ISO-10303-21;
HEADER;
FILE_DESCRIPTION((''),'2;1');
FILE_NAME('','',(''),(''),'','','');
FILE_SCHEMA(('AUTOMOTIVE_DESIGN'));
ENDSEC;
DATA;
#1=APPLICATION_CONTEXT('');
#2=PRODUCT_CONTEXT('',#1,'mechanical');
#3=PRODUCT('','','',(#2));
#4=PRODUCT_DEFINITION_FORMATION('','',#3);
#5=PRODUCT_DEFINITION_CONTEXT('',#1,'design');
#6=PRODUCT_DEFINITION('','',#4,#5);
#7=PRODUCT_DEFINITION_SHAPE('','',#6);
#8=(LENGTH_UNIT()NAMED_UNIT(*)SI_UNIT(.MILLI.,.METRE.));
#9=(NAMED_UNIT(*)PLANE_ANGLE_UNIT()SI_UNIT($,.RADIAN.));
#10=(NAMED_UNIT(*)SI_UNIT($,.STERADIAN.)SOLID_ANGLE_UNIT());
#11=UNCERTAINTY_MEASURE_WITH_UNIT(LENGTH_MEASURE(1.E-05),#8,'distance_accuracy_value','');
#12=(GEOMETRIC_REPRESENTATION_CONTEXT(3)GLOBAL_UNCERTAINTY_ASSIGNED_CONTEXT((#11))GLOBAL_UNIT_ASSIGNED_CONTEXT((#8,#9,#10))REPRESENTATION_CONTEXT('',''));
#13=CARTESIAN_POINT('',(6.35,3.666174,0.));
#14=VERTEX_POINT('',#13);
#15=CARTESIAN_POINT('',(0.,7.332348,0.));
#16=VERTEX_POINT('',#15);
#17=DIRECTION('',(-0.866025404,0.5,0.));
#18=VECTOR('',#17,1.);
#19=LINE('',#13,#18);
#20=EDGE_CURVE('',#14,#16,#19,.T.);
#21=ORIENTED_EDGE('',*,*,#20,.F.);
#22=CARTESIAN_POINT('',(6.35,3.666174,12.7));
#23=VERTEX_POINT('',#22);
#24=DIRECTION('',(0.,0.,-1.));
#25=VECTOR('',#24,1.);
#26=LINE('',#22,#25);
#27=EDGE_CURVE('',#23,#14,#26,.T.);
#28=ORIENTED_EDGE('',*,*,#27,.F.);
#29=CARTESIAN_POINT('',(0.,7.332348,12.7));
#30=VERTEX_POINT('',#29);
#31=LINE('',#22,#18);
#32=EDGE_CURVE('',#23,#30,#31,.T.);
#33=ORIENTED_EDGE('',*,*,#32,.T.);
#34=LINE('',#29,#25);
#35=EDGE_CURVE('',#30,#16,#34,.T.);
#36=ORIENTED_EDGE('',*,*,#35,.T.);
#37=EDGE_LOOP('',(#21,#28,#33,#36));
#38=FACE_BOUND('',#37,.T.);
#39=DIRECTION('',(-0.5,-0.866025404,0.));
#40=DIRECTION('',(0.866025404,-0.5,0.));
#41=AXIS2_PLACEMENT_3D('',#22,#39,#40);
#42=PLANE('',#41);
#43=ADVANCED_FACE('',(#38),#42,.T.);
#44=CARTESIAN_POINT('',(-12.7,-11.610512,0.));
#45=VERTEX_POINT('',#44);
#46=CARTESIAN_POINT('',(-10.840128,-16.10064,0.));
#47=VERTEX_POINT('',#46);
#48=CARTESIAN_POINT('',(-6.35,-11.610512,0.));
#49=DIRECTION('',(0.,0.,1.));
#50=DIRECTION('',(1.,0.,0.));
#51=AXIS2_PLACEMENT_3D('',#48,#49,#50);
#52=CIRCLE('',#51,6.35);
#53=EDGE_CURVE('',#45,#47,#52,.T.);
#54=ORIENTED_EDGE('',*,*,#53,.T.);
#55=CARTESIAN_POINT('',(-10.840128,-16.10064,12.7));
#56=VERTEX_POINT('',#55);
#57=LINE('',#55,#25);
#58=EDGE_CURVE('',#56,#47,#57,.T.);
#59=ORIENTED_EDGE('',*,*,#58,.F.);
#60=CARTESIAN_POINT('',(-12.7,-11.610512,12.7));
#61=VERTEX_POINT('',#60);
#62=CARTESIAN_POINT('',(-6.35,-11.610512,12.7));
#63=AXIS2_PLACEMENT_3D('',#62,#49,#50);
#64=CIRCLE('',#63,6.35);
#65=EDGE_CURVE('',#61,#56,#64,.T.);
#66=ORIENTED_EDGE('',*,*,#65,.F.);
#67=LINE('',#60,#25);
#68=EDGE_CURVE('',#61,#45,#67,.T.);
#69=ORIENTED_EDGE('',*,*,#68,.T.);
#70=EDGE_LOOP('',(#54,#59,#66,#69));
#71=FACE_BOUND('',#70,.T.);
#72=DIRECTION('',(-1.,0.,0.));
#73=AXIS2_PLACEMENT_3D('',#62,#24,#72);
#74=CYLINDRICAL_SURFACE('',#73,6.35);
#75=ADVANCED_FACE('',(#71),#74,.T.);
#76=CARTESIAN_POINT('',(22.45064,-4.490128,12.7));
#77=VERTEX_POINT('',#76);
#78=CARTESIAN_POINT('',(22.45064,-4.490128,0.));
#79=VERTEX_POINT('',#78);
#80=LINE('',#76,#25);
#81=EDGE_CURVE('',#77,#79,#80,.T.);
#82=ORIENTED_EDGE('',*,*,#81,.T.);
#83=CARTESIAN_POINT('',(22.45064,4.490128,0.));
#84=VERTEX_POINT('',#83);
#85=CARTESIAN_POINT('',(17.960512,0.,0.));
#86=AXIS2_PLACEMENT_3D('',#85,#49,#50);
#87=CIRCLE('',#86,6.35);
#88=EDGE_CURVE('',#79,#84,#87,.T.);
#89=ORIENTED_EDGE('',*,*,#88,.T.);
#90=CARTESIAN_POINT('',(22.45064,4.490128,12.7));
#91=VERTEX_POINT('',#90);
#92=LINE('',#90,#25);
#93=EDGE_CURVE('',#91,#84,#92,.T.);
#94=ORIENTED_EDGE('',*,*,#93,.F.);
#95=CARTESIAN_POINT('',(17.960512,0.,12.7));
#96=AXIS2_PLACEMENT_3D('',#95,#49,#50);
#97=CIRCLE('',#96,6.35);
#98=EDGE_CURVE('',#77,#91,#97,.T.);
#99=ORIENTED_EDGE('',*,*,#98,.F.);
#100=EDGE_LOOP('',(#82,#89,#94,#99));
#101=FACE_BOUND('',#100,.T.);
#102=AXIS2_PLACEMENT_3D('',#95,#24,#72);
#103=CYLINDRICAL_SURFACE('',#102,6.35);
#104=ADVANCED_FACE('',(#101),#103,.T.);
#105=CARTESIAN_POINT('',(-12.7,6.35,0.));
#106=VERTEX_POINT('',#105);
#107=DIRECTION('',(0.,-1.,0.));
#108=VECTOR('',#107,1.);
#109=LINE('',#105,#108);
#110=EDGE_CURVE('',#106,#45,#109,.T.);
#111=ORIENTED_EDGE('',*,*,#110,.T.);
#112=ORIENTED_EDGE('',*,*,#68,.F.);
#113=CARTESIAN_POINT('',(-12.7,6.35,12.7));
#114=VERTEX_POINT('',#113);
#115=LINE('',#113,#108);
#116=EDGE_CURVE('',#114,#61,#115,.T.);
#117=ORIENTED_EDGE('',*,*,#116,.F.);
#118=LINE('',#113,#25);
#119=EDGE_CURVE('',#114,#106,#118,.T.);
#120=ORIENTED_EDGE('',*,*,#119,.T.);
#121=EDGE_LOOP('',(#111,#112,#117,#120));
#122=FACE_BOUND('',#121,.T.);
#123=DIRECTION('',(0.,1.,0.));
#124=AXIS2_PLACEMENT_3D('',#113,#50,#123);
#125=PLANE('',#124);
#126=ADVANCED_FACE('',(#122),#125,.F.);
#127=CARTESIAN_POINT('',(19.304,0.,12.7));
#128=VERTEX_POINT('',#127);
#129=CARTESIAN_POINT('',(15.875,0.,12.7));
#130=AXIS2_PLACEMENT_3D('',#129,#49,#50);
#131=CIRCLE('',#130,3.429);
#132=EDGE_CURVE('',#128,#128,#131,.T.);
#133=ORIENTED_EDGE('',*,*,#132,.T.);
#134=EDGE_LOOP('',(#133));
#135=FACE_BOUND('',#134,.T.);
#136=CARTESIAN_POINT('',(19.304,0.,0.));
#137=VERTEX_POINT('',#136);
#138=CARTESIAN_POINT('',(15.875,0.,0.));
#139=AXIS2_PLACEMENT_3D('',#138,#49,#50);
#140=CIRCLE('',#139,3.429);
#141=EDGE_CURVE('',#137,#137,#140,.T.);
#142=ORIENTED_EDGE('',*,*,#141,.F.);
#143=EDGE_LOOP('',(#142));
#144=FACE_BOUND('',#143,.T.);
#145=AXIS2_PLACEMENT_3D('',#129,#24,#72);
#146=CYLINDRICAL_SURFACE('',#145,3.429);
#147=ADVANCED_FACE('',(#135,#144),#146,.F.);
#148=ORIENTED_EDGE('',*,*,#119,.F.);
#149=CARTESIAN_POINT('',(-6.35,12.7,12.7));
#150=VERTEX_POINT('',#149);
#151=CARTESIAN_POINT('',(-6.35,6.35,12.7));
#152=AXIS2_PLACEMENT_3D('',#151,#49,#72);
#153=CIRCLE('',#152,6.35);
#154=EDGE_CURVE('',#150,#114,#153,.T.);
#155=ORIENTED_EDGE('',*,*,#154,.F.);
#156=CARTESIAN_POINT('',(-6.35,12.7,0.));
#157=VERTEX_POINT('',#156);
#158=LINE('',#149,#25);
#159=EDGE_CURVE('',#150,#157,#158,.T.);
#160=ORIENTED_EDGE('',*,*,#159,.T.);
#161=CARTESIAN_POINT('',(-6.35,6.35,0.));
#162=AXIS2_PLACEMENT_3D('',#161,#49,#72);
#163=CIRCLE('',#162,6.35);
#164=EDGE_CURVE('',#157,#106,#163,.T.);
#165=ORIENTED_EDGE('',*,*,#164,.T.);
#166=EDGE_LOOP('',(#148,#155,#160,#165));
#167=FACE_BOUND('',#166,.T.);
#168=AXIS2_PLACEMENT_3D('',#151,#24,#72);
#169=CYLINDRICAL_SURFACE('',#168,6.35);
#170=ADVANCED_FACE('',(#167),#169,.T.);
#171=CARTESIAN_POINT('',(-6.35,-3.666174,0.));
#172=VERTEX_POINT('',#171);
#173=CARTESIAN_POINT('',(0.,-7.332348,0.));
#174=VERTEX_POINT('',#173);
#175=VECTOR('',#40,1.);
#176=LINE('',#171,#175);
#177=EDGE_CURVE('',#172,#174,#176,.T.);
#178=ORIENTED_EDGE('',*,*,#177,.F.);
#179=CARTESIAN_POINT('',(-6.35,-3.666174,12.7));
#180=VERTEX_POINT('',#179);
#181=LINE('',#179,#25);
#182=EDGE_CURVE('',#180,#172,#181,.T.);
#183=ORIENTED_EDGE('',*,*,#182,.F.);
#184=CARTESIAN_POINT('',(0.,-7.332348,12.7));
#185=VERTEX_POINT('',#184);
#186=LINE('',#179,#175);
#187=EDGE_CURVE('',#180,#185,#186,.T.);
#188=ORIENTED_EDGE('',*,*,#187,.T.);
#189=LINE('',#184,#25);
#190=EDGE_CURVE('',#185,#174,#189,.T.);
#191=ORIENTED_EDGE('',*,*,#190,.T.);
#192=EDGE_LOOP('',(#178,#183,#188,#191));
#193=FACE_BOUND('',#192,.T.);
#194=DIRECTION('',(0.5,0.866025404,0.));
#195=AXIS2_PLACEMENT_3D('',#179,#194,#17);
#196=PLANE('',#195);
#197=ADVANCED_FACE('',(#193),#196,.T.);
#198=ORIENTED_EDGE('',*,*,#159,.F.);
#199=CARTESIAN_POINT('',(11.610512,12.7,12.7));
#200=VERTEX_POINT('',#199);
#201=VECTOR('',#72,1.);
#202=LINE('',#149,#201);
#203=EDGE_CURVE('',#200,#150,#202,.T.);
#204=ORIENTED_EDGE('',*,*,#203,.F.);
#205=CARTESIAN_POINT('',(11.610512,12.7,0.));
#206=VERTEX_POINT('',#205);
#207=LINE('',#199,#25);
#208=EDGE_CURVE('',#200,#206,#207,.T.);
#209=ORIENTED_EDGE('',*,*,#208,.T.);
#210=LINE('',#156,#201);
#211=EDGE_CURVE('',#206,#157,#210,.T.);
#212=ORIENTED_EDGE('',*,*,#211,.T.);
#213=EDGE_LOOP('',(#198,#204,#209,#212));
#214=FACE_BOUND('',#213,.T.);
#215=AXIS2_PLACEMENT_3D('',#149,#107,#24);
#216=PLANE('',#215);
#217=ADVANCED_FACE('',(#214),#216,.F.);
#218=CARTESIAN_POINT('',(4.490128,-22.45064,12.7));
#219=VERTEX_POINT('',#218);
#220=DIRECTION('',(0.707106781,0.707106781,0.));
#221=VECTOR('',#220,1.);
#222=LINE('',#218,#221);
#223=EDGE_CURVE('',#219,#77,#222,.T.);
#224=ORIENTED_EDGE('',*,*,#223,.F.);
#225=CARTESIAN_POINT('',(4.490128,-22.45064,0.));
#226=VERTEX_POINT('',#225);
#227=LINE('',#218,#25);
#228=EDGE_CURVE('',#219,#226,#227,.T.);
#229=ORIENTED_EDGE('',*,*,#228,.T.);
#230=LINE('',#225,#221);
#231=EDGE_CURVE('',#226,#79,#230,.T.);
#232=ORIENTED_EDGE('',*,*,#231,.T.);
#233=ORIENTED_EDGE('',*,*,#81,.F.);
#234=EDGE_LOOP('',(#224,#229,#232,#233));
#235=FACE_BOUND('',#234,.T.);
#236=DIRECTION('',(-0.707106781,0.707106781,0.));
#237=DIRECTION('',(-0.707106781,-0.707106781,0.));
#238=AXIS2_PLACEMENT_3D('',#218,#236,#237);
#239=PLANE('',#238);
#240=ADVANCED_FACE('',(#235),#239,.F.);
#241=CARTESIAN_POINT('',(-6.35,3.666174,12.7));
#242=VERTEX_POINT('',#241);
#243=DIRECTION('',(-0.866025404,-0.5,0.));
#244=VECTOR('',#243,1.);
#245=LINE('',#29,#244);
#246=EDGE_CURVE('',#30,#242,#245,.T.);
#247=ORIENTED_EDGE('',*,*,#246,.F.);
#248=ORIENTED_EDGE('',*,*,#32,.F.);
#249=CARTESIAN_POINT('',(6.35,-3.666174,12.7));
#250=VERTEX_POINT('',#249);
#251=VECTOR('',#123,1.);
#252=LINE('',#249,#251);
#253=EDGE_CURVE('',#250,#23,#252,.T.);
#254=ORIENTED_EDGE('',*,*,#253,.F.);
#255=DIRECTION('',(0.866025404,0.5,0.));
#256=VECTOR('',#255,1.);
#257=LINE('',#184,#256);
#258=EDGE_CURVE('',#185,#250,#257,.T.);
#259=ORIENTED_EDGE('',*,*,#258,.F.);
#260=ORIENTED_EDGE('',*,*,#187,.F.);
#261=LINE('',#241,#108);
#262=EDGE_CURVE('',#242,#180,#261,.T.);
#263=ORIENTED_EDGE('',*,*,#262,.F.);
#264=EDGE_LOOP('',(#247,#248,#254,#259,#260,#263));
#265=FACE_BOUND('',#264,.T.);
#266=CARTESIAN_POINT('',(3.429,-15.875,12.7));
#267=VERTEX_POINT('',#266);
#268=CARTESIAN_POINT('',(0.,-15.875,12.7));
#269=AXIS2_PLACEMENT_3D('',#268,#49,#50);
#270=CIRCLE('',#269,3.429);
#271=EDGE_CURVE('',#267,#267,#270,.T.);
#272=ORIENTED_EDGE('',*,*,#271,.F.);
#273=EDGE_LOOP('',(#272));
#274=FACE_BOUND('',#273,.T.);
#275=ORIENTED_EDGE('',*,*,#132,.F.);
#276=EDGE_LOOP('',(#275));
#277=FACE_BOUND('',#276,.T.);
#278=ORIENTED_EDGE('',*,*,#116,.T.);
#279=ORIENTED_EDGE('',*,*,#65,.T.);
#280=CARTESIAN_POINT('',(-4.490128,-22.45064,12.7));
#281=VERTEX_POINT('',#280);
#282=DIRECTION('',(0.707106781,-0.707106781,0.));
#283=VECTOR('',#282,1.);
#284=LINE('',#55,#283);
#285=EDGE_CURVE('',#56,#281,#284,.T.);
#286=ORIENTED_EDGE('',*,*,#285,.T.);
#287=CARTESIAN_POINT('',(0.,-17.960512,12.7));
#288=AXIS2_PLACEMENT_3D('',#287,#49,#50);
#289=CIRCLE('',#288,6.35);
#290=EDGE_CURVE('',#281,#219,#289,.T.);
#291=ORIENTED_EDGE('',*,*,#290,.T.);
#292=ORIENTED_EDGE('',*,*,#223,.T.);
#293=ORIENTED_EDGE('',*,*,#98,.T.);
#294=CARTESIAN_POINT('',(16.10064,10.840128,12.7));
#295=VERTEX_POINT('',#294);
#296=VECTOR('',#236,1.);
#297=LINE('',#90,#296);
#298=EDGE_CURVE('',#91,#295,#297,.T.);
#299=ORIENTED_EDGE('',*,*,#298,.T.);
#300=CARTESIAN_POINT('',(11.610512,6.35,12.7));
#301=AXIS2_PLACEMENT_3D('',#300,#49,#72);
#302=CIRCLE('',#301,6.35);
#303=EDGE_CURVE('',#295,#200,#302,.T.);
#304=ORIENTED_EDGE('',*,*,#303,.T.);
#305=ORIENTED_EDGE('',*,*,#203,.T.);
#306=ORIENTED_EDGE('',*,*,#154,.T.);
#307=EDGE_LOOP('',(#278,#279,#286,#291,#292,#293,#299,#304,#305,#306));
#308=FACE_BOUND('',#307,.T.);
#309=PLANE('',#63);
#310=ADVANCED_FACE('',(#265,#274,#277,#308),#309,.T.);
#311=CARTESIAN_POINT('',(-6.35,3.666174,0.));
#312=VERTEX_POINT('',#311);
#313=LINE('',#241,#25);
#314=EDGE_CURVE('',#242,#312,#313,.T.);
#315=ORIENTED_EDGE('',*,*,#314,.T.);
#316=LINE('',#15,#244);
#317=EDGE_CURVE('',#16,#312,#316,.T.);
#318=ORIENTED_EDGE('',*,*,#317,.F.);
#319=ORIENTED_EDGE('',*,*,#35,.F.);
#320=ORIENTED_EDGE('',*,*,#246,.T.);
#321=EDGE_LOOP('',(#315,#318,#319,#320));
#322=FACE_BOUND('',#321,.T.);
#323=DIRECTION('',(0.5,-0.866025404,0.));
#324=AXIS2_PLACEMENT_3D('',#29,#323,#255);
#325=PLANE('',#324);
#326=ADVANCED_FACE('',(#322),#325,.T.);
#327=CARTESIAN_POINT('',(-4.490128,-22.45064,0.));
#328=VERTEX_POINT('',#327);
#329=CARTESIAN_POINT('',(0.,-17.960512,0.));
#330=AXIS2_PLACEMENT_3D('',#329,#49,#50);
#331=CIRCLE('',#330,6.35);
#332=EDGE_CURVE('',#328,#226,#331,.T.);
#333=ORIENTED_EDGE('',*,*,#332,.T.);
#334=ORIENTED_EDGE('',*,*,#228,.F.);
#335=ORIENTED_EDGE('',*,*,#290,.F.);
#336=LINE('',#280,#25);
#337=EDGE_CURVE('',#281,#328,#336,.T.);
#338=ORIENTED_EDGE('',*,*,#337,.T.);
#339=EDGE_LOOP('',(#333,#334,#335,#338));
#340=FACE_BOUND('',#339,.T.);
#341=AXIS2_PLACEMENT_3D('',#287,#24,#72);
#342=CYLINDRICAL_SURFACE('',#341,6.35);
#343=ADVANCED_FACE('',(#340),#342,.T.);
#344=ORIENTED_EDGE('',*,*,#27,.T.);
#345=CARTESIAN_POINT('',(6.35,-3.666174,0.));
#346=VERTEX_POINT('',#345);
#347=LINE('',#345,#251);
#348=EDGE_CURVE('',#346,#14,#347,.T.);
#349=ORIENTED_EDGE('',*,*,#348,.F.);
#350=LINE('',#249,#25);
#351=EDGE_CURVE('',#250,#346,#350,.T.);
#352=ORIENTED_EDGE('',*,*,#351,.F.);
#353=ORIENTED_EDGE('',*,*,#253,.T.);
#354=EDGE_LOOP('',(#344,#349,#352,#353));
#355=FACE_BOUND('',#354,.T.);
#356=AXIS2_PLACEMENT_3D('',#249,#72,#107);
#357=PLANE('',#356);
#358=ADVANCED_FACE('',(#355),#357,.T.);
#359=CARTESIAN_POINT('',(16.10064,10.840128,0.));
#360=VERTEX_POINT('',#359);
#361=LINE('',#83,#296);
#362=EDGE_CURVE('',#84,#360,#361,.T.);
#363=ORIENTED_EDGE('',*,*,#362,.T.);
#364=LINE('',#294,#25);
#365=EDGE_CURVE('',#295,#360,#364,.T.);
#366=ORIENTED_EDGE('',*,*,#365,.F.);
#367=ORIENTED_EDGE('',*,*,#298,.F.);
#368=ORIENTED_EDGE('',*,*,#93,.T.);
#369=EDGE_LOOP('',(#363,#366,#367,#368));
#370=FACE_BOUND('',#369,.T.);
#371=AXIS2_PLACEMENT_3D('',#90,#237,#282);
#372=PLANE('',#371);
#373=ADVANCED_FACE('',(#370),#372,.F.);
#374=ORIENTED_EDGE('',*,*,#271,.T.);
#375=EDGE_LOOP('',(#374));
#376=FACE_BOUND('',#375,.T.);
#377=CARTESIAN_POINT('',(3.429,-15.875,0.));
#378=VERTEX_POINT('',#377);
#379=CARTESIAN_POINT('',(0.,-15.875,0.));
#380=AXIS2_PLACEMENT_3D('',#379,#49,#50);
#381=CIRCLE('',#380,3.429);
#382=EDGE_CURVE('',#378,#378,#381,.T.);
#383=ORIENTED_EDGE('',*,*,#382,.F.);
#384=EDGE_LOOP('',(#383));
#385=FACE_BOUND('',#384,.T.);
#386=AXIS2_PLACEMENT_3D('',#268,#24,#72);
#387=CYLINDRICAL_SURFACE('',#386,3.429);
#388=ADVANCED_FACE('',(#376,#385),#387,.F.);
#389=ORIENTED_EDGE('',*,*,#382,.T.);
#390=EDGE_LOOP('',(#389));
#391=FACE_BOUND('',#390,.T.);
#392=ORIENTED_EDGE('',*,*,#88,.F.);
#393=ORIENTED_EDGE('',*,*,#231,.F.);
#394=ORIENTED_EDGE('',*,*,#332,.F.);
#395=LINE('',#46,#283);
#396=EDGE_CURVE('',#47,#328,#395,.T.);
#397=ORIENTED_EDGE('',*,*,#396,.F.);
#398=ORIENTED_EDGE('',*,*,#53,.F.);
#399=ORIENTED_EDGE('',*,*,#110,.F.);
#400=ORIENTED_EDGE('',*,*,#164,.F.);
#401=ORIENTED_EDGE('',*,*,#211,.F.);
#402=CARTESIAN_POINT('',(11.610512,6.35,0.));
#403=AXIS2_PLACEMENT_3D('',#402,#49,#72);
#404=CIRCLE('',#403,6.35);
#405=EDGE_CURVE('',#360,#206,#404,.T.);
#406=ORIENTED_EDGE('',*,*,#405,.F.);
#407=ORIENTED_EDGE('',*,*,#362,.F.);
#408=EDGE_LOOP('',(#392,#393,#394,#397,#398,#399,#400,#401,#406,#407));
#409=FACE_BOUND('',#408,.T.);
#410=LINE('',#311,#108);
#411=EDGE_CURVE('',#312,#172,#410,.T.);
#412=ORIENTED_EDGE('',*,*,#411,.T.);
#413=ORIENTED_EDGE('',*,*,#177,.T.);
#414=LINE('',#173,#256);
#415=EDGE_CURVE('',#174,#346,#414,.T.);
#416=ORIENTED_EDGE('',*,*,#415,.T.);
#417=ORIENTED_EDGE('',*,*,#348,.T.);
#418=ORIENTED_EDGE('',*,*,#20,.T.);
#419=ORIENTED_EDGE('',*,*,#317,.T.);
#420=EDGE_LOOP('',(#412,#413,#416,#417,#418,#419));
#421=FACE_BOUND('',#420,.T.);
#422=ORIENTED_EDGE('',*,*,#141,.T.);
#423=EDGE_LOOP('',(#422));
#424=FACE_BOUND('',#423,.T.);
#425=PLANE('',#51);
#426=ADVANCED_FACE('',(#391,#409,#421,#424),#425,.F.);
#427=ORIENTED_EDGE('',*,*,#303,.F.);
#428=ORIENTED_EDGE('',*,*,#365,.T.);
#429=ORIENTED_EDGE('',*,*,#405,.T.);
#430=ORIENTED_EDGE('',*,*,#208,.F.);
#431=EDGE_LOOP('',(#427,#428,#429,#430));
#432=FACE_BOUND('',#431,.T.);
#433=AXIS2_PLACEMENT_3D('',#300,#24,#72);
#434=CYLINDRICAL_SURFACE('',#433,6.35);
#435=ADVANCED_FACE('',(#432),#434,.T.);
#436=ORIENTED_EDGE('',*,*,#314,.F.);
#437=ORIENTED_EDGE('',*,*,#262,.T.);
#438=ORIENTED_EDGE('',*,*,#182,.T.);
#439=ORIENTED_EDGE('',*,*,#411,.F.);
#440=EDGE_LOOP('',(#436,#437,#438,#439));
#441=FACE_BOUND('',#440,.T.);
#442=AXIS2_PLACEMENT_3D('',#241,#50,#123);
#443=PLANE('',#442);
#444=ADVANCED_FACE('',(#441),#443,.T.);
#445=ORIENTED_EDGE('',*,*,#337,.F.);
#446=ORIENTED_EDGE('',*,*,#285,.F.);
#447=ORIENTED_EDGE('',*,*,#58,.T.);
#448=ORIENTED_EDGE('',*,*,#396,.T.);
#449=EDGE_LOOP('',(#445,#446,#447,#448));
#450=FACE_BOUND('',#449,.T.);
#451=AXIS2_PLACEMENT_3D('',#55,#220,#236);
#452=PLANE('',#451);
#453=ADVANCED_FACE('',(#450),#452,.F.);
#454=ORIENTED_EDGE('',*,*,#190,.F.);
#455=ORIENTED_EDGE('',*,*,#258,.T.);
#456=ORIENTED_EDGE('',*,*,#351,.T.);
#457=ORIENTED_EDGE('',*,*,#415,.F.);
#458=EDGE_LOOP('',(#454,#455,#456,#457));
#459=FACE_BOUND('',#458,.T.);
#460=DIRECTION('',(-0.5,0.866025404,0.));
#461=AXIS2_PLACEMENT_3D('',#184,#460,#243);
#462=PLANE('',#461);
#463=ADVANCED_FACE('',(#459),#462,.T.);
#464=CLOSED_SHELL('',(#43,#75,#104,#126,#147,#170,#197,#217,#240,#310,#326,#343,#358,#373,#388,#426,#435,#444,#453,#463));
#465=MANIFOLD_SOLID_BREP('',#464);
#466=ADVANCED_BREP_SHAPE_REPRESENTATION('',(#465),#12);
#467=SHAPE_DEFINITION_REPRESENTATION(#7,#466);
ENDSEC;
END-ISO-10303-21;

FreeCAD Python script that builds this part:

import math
import FreeCAD as App
import Part
import Sketcher

V = App.Vector
Q = App.Units.Quantity


def add_polygon(sketch, points):
    """Adds a closed chain of lines whose ends are joined by coincident constraints."""
    first, n = sketch.GeometryCount, len(points)
    for a, b in zip(points, points[1:] + points[:1]):
        sketch.addGeometry(Part.LineSegment(App.Vector(*a, 0), App.Vector(*b, 0)), False)
    for i in range(n):
        sketch.addConstraint(Sketcher.Constraint("Coincident", first + i, 2, first + (i + 1) % n, 1))

doc = App.newDocument("Part")
body = doc.addObject("PartDesign::Body", "Body")

sketch1 = body.newObject("Sketcher::SketchObject", "Sketch")
sketch1.AttachmentSupport = (doc.getObject("XY_Plane"), [""])
sketch1.MapMode = "FlatFace"
sketch1.addGeometry(Part.LineSegment(V(-10.8, -16.1, 0), V(-4.5, -22.5, 0)), False)
sketch1.addGeometry(Part.ArcOfCircle(Part.Circle(V(0, -18, 0), V(0, 0, 1), 6.4), math.radians(-135), math.radians(-45)), False)
sketch1.addGeometry(Part.LineSegment(V(4.5, -22.5, 0), V(22.5, -4.5, 0)), False)
sketch1.addGeometry(Part.ArcOfCircle(Part.Circle(V(18, 0, 0), V(0, 0, 1), 6.4), math.radians(-45), math.radians(45)), False)
sketch1.addGeometry(Part.LineSegment(V(22.5, 4.5, 0), V(16.1, 10.8, 0)), False)
sketch1.addGeometry(Part.ArcOfCircle(Part.Circle(V(11.6, 6.3, 0), V(0, 0, 1), 6.4), math.radians(45), math.radians(90)), False)
sketch1.addGeometry(Part.LineSegment(V(11.6, 12.7, 0), V(-6.3, 12.7, 0)), False)
sketch1.addGeometry(Part.ArcOfCircle(Part.Circle(V(-6.4, 6.4, 0), V(0, 0, 1), 6.3), math.radians(90), math.radians(180)), False)
sketch1.addGeometry(Part.LineSegment(V(-12.7, 6.3, 0), V(-12.7, -11.6, 0)), False)
sketch1.addGeometry(Part.ArcOfCircle(Part.Circle(V(-6.3, -11.6, 0), V(0, 0, 1), 6.4), math.radians(-180), math.radians(-135)), False)
sketch1.addGeometry(Part.Circle(V(0, -15.9, 0), V(0, 0, 1), 3.4), False)
add_polygon(sketch1, [(0, 7.3), (6.3, 3.7), (6.3, -3.7), (0, -7.3), (-6.3, -3.7), (-6.3, 3.7)])
sketch1.addGeometry(Part.Circle(V(15.9, 0, 0), V(0, 0, 1), 3.4), False)
sketch1.addConstraint(Sketcher.Constraint("Tangent", 0, 2, 1, 1))
sketch1.addConstraint(Sketcher.Constraint("Tangent", 1, 2, 2, 1))
sketch1.addConstraint(Sketcher.Constraint("Tangent", 2, 2, 3, 1))
sketch1.addConstraint(Sketcher.Constraint("Tangent", 3, 2, 4, 1))
sketch1.addConstraint(Sketcher.Constraint("Tangent", 4, 2, 5, 1))
sketch1.addConstraint(Sketcher.Constraint("Tangent", 5, 2, 6, 1))
sketch1.addConstraint(Sketcher.Constraint("Tangent", 6, 2, 7, 1))
sketch1.addConstraint(Sketcher.Constraint("Tangent", 7, 2, 8, 1))
sketch1.addConstraint(Sketcher.Constraint("Tangent", 8, 2, 9, 1))
sketch1.addConstraint(Sketcher.Constraint("Tangent", 9, 2, 0, 1))
sketch1.addConstraint(Sketcher.Constraint("Horizontal", 6))
sketch1.addConstraint(Sketcher.Constraint("Vertical", 8))
sketch1.addConstraint(Sketcher.Constraint("Vertical", 12))
sketch1.addConstraint(Sketcher.Constraint("Vertical", 15))
sketch1.addConstraint(Sketcher.Constraint("Equal", 1, 3))
sketch1.addConstraint(Sketcher.Constraint("Equal", 3, 5))
sketch1.addConstraint(Sketcher.Constraint("Equal", 5, 7))
sketch1.addConstraint(Sketcher.Constraint("Equal", 7, 9))
sketch1.addConstraint(Sketcher.Constraint("Equal", 10, 17))
sketch1.addConstraint(Sketcher.Constraint("Symmetric", 11, 2, 14, 2, -1, 1))
sketch1.addConstraint(Sketcher.Constraint("Symmetric", 13, 2, 16, 2, -1, 1))
sketch1.addConstraint(Sketcher.Constraint("Symmetric", 0, 2, 1, 2, -2))
sketch1.addConstraint(Sketcher.Constraint("Symmetric", 2, 2, 3, 2, -1))
sketch1.addConstraint(Sketcher.Constraint("PointOnObject", 10, 3, -2))
sketch1.addConstraint(Sketcher.Constraint("PointOnObject", 17, 3, -1))
sketch1.addConstraint(Sketcher.Constraint("PointOnObject", 13, 2, -2))
sketch1.addConstraint(Sketcher.Constraint("Perpendicular", 0, 2))
sketch1.addConstraint(Sketcher.Constraint("Parallel", 13, 16))
sketch1.addConstraint(Sketcher.Constraint("Horizontal", 12, 2, 14, 2))
sketch1.addConstraint(Sketcher.Constraint("Vertical", 6, 2, 14, 2))
sketch1.addConstraint(Sketcher.Constraint("Equal", 6, 8))
sketch1.addConstraint(Sketcher.Constraint("Diameter", 10, Q("0.27 in")))
sketch1.addConstraint(Sketcher.Constraint("Radius", 1, Q("0.25 in")))
sketch1.addConstraint(Sketcher.Constraint("Distance", 2, Q("1 in")))
sketch1.addConstraint(Sketcher.Constraint("Angle", 11, Q("-30 deg")))
sketch1.addConstraint(Sketcher.Constraint("DistanceY", -1, 1, 5, 2, Q("0.5 in")))
sketch1.addConstraint(Sketcher.Constraint("DistanceY", 10, 3, -1, 1, Q("0.625 in")))
sketch1.addConstraint(Sketcher.Constraint("DistanceX", -1, 1, 17, 3, Q("0.625 in")))
sketch1.addConstraint(Sketcher.Constraint("DistanceY", 12, 2, 12, 1, Q("7.332348 mm")))
pad1 = body.newObject("PartDesign::Pad", "Pad")
pad1.Profile = sketch1
pad1.Length = Q("0.5 in")

doc.recompute()
